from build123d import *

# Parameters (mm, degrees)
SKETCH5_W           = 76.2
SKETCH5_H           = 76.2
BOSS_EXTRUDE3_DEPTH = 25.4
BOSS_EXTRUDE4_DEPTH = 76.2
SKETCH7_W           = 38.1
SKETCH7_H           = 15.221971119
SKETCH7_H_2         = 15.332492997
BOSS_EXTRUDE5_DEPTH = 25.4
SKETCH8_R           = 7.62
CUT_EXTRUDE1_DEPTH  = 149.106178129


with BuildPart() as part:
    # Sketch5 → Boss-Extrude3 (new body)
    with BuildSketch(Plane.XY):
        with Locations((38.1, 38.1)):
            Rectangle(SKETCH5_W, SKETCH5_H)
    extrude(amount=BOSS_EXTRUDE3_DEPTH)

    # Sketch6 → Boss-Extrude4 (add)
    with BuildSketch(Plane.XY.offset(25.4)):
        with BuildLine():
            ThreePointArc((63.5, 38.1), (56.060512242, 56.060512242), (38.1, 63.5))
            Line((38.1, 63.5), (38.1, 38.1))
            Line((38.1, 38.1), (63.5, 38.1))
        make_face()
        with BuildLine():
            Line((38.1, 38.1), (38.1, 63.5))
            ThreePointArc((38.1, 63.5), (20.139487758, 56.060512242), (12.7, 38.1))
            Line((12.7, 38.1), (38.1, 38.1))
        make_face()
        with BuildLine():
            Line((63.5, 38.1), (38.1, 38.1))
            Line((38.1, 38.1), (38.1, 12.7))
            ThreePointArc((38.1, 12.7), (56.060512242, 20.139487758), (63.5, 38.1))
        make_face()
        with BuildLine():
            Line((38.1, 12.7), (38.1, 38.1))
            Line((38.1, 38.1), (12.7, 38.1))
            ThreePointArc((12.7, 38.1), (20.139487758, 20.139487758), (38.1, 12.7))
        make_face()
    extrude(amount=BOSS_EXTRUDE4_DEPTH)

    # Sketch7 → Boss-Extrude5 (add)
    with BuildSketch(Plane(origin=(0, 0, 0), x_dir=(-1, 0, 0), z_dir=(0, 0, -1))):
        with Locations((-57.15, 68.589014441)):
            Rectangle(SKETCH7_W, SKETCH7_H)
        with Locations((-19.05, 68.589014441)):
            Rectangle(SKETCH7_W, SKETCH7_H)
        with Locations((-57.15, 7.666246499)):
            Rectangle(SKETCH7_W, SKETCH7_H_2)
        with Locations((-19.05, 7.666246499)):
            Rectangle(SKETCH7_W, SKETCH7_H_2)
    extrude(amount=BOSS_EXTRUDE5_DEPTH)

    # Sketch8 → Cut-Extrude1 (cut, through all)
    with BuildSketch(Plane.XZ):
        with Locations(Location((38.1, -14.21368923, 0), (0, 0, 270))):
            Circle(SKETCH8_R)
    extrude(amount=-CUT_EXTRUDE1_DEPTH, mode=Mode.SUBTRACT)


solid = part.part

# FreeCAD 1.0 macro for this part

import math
import FreeCAD as App
import Part
import Sketcher
from FreeCAD import Vector
Q = App.Units.Quantity


def add_polygon(sketch, points):
    """Adds a closed chain of lines whose ends are joined by coincident constraints."""
    first, n = sketch.GeometryCount, len(points)
    for a, b in zip(points, points[1:] + points[:1]):
        sketch.addGeometry(Part.LineSegment(App.Vector(*a, 0), App.Vector(*b, 0)), False)
    for i in range(n):
        sketch.addConstraint(Sketcher.Constraint("Coincident", first + i, 2, first + (i + 1) % n, 1))

doc = App.newDocument("Part")
body = doc.addObject("PartDesign::Body", "Body")

sketch1 = body.newObject("Sketcher::SketchObject", "Sketch")
sketch1.AttachmentSupport = (doc.getObject("XY_Plane"), [""])
sketch1.MapMode = "FlatFace"
add_polygon(sketch1, [(0, 76), (0, 0), (76, 0), (76, 76)])
sketch1.addConstraint(Sketcher.Constraint("Vertical", 0))
sketch1.addConstraint(Sketcher.Constraint("Horizontal", 1))
sketch1.addConstraint(Sketcher.Constraint("Vertical", 2))
sketch1.addConstraint(Sketcher.Constraint("Horizontal", 3))
sketch1.addConstraint(Sketcher.Constraint("Coincident", 0, 2, -1, 1))
sketch1.addConstraint(Sketcher.Constraint("Equal", 3, 0))
sketch1.addConstraint(Sketcher.Constraint("DistanceX", 1, 1, 1, 2, Q("3 in")))
pad1 = body.newObject("PartDesign::Pad", "Pad")
pad1.Profile = sketch1
pad1.Length = Q("1 in")

sketch2 = body.newObject("Sketcher::SketchObject", "Sketch001")
sketch2.AttachmentSupport = (doc.getObject("XY_Plane"), [""])
sketch2.MapMode = "FlatFace"
sketch2.AttachmentOffset = App.Placement(Vector(0, 0, 1 * 25.4), App.Rotation())
sketch2.addGeometry(Part.ArcOfCircle(Part.Circle(Vector(38, 38, 0), Vector(0, 0, 1), 25), math.radians(90), math.radians(180)), False)
sketch2.addGeometry(Part.ArcOfCircle(Part.Circle(Vector(38, 38, 0), Vector(0, 0, 1), 25), math.radians(180), math.radians(270)), False)
sketch2.addGeometry(Part.ArcOfCircle(Part.Circle(Vector(38, 38, 0), Vector(0, 0, 1), 25), math.radians(-90), math.radians(0)), False)
sketch2.addGeometry(Part.ArcOfCircle(Part.Circle(Vector(38, 38, 0), Vector(0, 0, 1), 25), math.radians(0), math.radians(90)), False)
sketch2.addConstraint(Sketcher.Constraint("Tangent", 0, 2, 1, 1))
sketch2.addConstraint(Sketcher.Constraint("Tangent", 1, 2, 2, 1))
sketch2.addConstraint(Sketcher.Constraint("Tangent", 2, 2, 3, 1))
sketch2.addConstraint(Sketcher.Constraint("Tangent", 3, 2, 0, 1))
sketch2.addConstraint(Sketcher.Constraint("Equal", 0, 1))
sketch2.addConstraint(Sketcher.Constraint("Horizontal", 3, 3, 0, 2))
sketch2.addConstraint(Sketcher.Constraint("Horizontal", 0, 2, 2, 2))
sketch2.addConstraint(Sketcher.Constraint("Vertical", 3, 3, 1, 2))
sketch2.addConstraint(Sketcher.Constraint("Vertical", 1, 2, 3, 2))
sketch2.addConstraint(Sketcher.Constraint("Radius", 0, Q("1 in")))
sketch2.addConstraint(Sketcher.Constraint("DistanceX", -1, 1, 0, 3, Q("1.5 in")))
sketch2.addConstraint(Sketcher.Constraint("DistanceY", -1, 1, 0, 3, Q("1.5 in")))
pad2 = body.newObject("PartDesign::Pad", "Pad001")
pad2.Profile = sketch2
pad2.Length = Q("3 in")

sketch3 = body.newObject("Sketcher::SketchObject", "Sketch002")
sketch3.AttachmentSupport = (doc.getObject("XY_Plane"), [""])
sketch3.MapMode = "FlatFace"
add_polygon(sketch3, [(76, 76), (76, 61), (0, 61), (0, 76)])
add_polygon(sketch3, [(76, 15), (76, 0), (0, 0), (0, 15)])
sketch3.addConstraint(Sketcher.Constraint("Vertical", 0))
sketch3.addConstraint(Sketcher.Constraint("Horizontal", 1))
sketch3.addConstraint(Sketcher.Constraint("Vertical", 2))
sketch3.addConstraint(Sketcher.Constraint("Horizontal", 3))
sketch3.addConstraint(Sketcher.Constraint("Vertical", 4))
sketch3.addConstraint(Sketcher.Constraint("Horizontal", 5))
sketch3.addConstraint(Sketcher.Constraint("Vertical", 6))
sketch3.addConstraint(Sketcher.Constraint("Horizontal", 7))
sketch3.addConstraint(Sketcher.Constraint("Coincident", 5, 2, -1, 1))
sketch3.addConstraint(Sketcher.Constraint("PointOnObject", 1, 2, -2))
sketch3.addConstraint(Sketcher.Constraint("Vertical", 3, 2, 4, 2))
sketch3.addConstraint(Sketcher.Constraint("DistanceX", 1, 2, 1, 1, Q("3 in")))
sketch3.addConstraint(Sketcher.Constraint("DistanceY", -1, 1, 2, 2, Q("3 in")))
sketch3.addConstraint(Sketcher.Constraint("DistanceY", 0, 2, 0, 1, Q("15.221971 mm")))
sketch3.addConstraint(Sketcher.Constraint("DistanceY", 4, 2, 4, 1, Q("15.332493 mm")))
pad3 = body.newObject("PartDesign::Pad", "Pad002")
pad3.Profile = sketch3
pad3.Length = Q("1 in")
pad3.Reversed = True

sketch4 = body.newObject("Sketcher::SketchObject", "Sketch003")
sketch4.AttachmentSupport = (doc.getObject("XZ_Plane"), [""])
sketch4.MapMode = "FlatFace"
sketch4.addGeometry(Part.Circle(Vector(38, -14, 0), Vector(0, 0, 1), 8), False)
sketch4.addConstraint(Sketcher.Constraint("Diameter", 0, Q("0.6 in")))
sketch4.addConstraint(Sketcher.Constraint("DistanceX", -1, 1, 0, 3, Q("1.5 in")))
sketch4.addConstraint(Sketcher.Constraint("DistanceY", 0, 3, -1, 1, Q("14.213689 mm")))
pocket1 = body.newObject("PartDesign::Pocket", "Pocket")
pocket1.Profile = sketch4
pocket1.Type = "ThroughAll"

doc.recompute()
